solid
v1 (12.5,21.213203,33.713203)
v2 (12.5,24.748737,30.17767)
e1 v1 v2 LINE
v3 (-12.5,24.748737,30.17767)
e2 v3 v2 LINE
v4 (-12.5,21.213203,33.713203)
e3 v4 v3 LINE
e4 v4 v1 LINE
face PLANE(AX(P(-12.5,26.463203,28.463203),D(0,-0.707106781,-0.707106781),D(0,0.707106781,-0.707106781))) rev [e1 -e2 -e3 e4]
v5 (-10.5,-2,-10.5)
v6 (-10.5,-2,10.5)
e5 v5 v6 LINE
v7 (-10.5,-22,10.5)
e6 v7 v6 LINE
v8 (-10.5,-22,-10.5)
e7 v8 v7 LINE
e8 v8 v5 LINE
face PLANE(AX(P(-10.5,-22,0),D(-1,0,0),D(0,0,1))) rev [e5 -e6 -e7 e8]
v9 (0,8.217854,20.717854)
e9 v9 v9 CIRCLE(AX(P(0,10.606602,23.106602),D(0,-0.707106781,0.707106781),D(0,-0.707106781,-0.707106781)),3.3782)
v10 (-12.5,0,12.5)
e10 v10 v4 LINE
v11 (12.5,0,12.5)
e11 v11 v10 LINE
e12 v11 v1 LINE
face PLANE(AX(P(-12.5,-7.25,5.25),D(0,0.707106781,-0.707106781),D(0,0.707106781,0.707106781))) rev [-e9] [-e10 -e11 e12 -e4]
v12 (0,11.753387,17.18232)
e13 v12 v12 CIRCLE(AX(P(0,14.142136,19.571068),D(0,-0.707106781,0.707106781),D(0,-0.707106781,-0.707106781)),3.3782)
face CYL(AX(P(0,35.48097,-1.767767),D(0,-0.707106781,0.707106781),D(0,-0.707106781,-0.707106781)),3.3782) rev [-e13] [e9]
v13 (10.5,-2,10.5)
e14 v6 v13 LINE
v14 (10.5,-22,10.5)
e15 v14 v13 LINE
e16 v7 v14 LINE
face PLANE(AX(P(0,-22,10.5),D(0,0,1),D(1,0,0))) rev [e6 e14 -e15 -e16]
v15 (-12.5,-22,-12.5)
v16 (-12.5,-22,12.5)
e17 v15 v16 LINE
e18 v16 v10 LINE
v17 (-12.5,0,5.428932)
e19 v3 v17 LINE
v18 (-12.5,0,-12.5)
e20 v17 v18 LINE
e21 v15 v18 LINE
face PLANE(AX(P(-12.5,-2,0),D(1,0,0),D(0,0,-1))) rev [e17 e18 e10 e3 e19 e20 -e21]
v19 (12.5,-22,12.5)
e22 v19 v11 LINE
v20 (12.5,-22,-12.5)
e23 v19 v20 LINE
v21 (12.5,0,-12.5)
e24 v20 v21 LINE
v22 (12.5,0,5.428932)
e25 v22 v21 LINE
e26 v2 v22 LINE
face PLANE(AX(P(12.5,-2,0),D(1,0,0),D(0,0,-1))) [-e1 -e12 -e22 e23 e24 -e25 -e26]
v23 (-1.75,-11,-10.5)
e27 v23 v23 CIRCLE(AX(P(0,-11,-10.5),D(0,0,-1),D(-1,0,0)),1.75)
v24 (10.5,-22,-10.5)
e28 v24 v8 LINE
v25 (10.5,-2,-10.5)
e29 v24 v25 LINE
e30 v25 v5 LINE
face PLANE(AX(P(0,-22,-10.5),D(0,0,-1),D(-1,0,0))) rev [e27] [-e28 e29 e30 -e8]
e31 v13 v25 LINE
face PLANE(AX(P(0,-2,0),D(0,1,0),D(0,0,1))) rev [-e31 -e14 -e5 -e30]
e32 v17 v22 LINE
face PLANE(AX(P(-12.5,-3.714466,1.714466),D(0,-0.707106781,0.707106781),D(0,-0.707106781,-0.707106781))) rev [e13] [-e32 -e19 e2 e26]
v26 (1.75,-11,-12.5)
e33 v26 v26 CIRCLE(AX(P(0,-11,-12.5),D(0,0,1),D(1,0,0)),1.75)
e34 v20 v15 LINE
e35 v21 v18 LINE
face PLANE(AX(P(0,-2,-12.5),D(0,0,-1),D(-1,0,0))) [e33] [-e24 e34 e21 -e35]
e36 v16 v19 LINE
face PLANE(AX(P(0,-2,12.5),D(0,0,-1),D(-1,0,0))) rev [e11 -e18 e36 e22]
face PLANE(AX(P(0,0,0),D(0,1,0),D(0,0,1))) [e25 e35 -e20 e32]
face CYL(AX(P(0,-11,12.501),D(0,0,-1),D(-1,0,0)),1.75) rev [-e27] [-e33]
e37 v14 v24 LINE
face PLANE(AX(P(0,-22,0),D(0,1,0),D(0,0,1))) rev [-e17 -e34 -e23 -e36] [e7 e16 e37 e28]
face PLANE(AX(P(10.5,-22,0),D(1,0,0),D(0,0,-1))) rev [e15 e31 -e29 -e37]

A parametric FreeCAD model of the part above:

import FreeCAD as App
import Part
import Sketcher

V = App.Vector
Q = App.Units.Quantity


def add_polygon(sketch, points):
    """Adds a closed chain of lines whose ends are joined by coincident constraints."""
    first, n = sketch.GeometryCount, len(points)
    for a, b in zip(points, points[1:] + points[:1]):
        sketch.addGeometry(Part.LineSegment(App.Vector(*a, 0), App.Vector(*b, 0)), False)
    for i in range(n):
        sketch.addConstraint(Sketcher.Constraint("Coincident", first + i, 2, first + (i + 1) % n, 1))

doc = App.newDocument("Part")
body = doc.addObject("PartDesign::Body", "Body")

sketch1 = doc.addObject("Sketcher::SketchObject", "Sketch")
body.addObject(sketch1)
sketch1.AttachmentSupport = (doc.XZ_Plane, [""])
sketch1.MapMode = "FlatFace"
add_polygon(sketch1, [(-12.5, -12.5), (-12.5, 12.5), (12.5, 12.5), (12.5, -12.5)])
sketch1.addConstraint(Sketcher.Constraint("Vertical", 0))
sketch1.addConstraint(Sketcher.Constraint("Horizontal", 1))
sketch1.addConstraint(Sketcher.Constraint("Vertical", 2))
sketch1.addConstraint(Sketcher.Constraint("Horizontal", 3))
sketch1.addConstraint(Sketcher.Constraint("Symmetric", 0, 2, 2, 2, -1, 1))
sketch1.addConstraint(Sketcher.Constraint("Equal", 3, 0))
sketch1.addConstraint(Sketcher.Constraint("DistanceX", 1, 1, 1, 2, Q("25 mm")))
pad1 = doc.addObject("PartDesign::Pad", "Pad")
body.addObject(pad1)
pad1.Profile = sketch1
pad1.Length = 2

sketch2 = doc.addObject("Sketcher::SketchObject", "Sketch001")
body.addObject(sketch2)
sketch2.AttachmentSupport = (doc.XZ_Plane, [""])
sketch2.MapMode = "FlatFace"
sketch2.AttachmentOffset = App.Placement(V(0, 0, 2), App.Rotation())
add_polygon(sketch2, [(-12.5, -12.5), (-12.5, 12.5), (12.5, 12.5), (12.5, -12.5)])
add_polygon(sketch2, [(10.5, 10.5), (-10.5, 10.5), (-10.5, -10.5), (10.5, -10.5)])
sketch2.addConstraint(Sketcher.Constraint("Vertical", 0))
sketch2.addConstraint(Sketcher.Constraint("Horizontal", 1))
sketch2.addConstraint(Sketcher.Constraint("Vertical", 2))
sketch2.addConstraint(Sketcher.Constraint("Horizontal", 3))
sketch2.addConstraint(Sketcher.Constraint("Horizontal", 4))
sketch2.addConstraint(Sketcher.Constraint("Vertical", 5))
sketch2.addConstraint(Sketcher.Constraint("Horizontal", 6))
sketch2.addConstraint(Sketcher.Constraint("Vertical", 7))
sketch2.addConstraint(Sketcher.Constraint("Symmetric", 0, 2, 2, 2, -1, 1))
sketch2.addConstraint(Sketcher.Constraint("Symmetric", 4, 2, 6, 2, -1, 1))
sketch2.addConstraint(Sketcher.Constraint("Equal", 3, 0))
sketch2.addConstraint(Sketcher.Constraint("Equal", 6, 5))
sketch2.addConstraint(Sketcher.Constraint("DistanceX", 1, 1, 1, 2, Q("25 mm")))
sketch2.addConstraint(Sketcher.Constraint("DistanceX", 4, 2, 4, 1, Q("21 mm")))
pad2 = doc.addObject("PartDesign::Pad", "Pad001")
body.addObject(pad2)
pad2.Profile = sketch2
pad2.Length = 20

sketch3 = doc.addObject("Sketcher::SketchObject", "Sketch002")
body.addObject(sketch3)
sketch3.AttachmentSupport = (doc.XY_Plane, [""])
sketch3.MapMode = "FlatFace"
sketch3.AttachmentOffset = App.Placement(V(0, 0, -12.5), App.Rotation())
sketch3.addGeometry(Part.Circle(V(0, -11, 0), V(0, 0, 1), 1.75), False)
sketch3.addConstraint(Sketcher.Constraint("PointOnObject", 0, 3, -2))
sketch3.addConstraint(Sketcher.Constraint("Diameter", 0, Q("3.5 mm")))
sketch3.addConstraint(Sketcher.Constraint("DistanceY", 0, 3, -1, 1, Q("11 mm")))
pocket1 = doc.addObject("PartDesign::Pocket", "Pocket")
body.addObject(pocket1)
pocket1.Profile = sketch3
pocket1.Type = "UpToFirst"
pocket1.Reversed = True

sketch4 = doc.addObject("Sketcher::SketchObject", "Sketch003")
body.addObject(sketch4)
sketch4.AttachmentSupport = (doc.YZ_Plane, [""])
sketch4.MapMode = "FlatFace"
sketch4.AttachmentOffset = App.Placement(V(0, 0, 12.5), App.Rotation())
add_polygon(sketch4, [(21.213203, 33.713203), (0, 12.5), (0, 5.428932), (24.748737, 30.17767)])
sketch4.addConstraint(Sketcher.Constraint("Vertical", 1))
sketch4.addConstraint(Sketcher.Constraint("PointOnObject", 0, 2, -2))
sketch4.addConstraint(Sketcher.Constraint("Parallel", 0, 2))
sketch4.addConstraint(Sketcher.Constraint("Perpendicular", 2, 3))
sketch4.addConstraint(Sketcher.Constraint("Angle", 0, Q("-135 deg")))
sketch4.addConstraint(Sketcher.Constraint("Distance", 0, Q("30 mm")))
sketch4.addConstraint(Sketcher.Constraint("Distance", 2, Q("35 mm")))
sketch4.addConstraint(Sketcher.Constraint("DistanceY", -1, 1, 0, 2, Q("12.5 mm")))
pad3 = doc.addObject("PartDesign::Pad", "Pad002")
body.addObject(pad3)
pad3.Profile = sketch4
pad3.Length = 25
pad3.Reversed = True

sketch5 = doc.addObject("Sketcher::SketchObject", "Sketch004")
body.addObject(sketch5)
sketch5.Placement = App.Placement(V(0, -6.25, 6.25), App.Rotation(V(1, 0, 0), V(0, 0.707106781, 0.707106781), V(0, -0.707106781, 0.707106781), "ZXY"))
sketch5.addGeometry(Part.Circle(V(0, 23.838835, 0), V(0, 0, 1), 3.3782), False)
sketch5.addConstraint(Sketcher.Constraint("PointOnObject", 0, 3, -2))
sketch5.addConstraint(Sketcher.Constraint("Diameter", 0, Q("6.7564 mm")))
sketch5.addConstraint(Sketcher.Constraint("DistanceY", -1, 1, 0, 3, Q("23.838835 mm")))
pocket2 = doc.addObject("PartDesign::Pocket", "Pocket001")
body.addObject(pocket2)
pocket2.Profile = sketch5
pocket2.Type = "ThroughAll"

doc.recompute()
